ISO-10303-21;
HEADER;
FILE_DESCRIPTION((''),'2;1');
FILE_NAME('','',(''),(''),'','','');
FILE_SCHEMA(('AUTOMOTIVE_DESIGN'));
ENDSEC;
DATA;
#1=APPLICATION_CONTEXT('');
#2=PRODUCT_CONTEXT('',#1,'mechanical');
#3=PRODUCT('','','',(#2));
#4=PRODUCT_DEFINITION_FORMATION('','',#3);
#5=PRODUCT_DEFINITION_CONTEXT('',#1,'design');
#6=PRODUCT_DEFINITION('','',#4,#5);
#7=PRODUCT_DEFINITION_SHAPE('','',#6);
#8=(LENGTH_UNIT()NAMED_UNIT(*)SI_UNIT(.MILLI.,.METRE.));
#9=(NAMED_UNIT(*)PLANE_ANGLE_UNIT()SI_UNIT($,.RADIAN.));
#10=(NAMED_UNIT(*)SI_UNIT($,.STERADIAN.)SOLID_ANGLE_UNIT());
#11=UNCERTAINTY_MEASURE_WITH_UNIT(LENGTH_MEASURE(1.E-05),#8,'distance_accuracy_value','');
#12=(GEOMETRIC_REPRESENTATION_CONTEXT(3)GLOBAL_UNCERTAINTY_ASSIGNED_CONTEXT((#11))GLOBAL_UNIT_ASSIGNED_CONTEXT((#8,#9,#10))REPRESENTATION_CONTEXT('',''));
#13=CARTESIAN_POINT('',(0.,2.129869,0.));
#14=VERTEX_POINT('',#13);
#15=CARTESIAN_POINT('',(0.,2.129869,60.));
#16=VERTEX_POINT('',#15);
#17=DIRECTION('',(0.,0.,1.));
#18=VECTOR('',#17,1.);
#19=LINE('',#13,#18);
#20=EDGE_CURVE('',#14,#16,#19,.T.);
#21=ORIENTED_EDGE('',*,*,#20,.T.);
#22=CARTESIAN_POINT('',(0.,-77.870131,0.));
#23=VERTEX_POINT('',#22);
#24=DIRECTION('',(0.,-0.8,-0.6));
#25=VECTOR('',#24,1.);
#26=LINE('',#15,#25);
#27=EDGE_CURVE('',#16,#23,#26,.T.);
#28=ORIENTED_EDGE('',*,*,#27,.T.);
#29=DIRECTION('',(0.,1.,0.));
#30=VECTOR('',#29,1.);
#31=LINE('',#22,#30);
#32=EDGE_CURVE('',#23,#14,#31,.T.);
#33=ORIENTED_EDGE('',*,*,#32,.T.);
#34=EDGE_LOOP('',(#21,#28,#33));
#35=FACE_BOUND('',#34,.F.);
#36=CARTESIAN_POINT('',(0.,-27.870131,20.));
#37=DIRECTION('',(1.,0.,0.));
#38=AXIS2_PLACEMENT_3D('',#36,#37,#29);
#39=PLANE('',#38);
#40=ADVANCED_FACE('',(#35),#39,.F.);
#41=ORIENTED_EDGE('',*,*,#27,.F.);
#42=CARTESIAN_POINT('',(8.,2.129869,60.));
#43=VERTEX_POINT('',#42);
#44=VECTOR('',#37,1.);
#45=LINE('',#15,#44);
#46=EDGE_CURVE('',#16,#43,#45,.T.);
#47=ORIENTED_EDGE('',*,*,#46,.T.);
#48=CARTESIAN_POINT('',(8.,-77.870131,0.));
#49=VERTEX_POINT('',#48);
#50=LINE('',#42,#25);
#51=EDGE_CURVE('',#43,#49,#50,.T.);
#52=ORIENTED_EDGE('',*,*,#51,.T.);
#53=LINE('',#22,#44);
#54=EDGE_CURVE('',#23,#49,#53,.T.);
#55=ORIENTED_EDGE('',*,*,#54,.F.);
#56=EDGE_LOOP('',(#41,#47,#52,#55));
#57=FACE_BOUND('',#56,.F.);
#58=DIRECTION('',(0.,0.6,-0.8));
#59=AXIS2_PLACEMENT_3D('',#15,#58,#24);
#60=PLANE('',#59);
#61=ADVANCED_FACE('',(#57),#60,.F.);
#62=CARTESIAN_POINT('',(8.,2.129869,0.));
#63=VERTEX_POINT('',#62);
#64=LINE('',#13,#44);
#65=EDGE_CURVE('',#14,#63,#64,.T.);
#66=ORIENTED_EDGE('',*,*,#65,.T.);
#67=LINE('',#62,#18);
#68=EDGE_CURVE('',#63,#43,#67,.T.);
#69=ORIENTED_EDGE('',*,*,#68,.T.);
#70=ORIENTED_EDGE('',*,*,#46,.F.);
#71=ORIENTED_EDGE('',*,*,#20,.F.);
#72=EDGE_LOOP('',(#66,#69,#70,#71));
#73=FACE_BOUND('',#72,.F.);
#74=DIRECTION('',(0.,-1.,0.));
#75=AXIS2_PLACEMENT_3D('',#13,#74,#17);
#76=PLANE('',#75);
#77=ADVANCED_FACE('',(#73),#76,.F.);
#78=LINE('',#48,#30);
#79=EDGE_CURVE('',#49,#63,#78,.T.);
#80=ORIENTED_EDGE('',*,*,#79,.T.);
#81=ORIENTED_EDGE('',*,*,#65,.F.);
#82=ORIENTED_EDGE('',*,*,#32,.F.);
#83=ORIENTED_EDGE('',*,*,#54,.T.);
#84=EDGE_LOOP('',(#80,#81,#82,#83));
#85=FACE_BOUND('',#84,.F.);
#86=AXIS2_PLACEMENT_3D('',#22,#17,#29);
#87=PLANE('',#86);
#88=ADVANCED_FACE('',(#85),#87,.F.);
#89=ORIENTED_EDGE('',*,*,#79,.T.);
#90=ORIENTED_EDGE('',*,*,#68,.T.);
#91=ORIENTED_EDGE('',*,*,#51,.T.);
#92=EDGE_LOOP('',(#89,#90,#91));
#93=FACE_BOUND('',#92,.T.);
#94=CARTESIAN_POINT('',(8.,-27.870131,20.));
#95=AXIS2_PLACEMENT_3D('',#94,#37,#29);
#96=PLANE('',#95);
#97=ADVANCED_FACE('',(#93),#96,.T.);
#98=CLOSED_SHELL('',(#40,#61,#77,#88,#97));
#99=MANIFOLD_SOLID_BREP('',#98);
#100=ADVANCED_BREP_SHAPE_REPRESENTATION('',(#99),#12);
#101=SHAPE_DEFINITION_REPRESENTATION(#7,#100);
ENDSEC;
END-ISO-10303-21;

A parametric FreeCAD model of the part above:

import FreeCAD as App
import Part
import Sketcher
Q = App.Units.Quantity


def add_polygon(sketch, points):
    """Adds a closed chain of lines whose ends are joined by coincident constraints."""
    first, n = sketch.GeometryCount, len(points)
    for a, b in zip(points, points[1:] + points[:1]):
        sketch.addGeometry(Part.LineSegment(App.Vector(*a, 0), App.Vector(*b, 0)), False)
    for i in range(n):
        sketch.addConstraint(Sketcher.Constraint("Coincident", first + i, 2, first + (i + 1) % n, 1))

doc = App.newDocument("Part")
body = doc.addObject("PartDesign::Body", "Body")

sketch1 = doc.addObject("Sketcher::SketchObject", "Sketch")
body.addObject(sketch1)
sketch1.AttachmentSupport = (doc.YZ_Plane, [""])
sketch1.MapMode = "FlatFace"
add_polygon(sketch1, [(-78, 0), (2, 0), (2, 60)])
sketch1.addConstraint(Sketcher.Constraint("Horizontal", 0))
sketch1.addConstraint(Sketcher.Constraint("Vertical", 1))
sketch1.addConstraint(Sketcher.Constraint("PointOnObject", 0, 2, -1))
sketch1.addConstraint(Sketcher.Constraint("DistanceX", 0, 1, 0, 2, Q("80 mm")))
sketch1.addConstraint(Sketcher.Constraint("DistanceY", 1, 1, 1, 2, Q("60 mm")))
sketch1.addConstraint(Sketcher.Constraint("DistanceX", -1, 1, 0, 2, Q("2.129869 mm")))
pad1 = doc.addObject("PartDesign::Pad", "Pad")
body.addObject(pad1)
pad1.Profile = sketch1
pad1.Length = 8

doc.recompute()
